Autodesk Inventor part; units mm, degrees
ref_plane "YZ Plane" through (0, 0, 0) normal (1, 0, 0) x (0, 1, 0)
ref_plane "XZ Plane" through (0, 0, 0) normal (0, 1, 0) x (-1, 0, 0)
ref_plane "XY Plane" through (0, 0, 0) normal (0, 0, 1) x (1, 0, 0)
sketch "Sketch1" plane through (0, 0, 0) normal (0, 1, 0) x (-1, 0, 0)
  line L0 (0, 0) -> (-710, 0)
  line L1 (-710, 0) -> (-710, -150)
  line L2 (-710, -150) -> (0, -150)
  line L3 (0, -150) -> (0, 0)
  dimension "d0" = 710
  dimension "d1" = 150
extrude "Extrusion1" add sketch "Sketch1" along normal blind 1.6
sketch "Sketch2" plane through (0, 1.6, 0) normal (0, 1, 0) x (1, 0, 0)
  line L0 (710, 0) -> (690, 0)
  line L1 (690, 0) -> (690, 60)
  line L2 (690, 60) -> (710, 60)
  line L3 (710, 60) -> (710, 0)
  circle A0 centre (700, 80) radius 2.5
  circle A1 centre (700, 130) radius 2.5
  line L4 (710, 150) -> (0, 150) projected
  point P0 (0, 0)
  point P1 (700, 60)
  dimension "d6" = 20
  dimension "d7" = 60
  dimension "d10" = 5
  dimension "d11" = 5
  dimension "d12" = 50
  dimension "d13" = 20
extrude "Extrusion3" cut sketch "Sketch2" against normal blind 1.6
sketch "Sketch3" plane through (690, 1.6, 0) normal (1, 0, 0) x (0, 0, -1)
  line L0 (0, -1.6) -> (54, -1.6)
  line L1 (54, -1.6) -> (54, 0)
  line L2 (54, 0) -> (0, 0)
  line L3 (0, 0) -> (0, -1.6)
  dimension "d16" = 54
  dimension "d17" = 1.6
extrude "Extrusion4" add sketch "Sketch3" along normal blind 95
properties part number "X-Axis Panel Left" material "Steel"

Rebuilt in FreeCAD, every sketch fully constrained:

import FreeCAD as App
import Part
import Sketcher

V = App.Vector


def add_polygon(sketch, points):
    """Adds a closed chain of lines whose ends are joined by coincident constraints."""
    first, n = sketch.GeometryCount, len(points)
    for a, b in zip(points, points[1:] + points[:1]):
        sketch.addGeometry(Part.LineSegment(App.Vector(*a, 0), App.Vector(*b, 0)), False)
    for i in range(n):
        sketch.addConstraint(Sketcher.Constraint("Coincident", first + i, 2, first + (i + 1) % n, 1))

doc = App.newDocument("Part")
body = doc.addObject("PartDesign::Body", "Body")

# Sketch on XZ plane
sketch1 = body.newObject("Sketcher::SketchObject", "Sketch")
sketch1.AttachmentSupport = (doc.getObject("XZ_Plane"), [""])
sketch1.MapMode = "FlatFace"
add_polygon(sketch1, [(0, -150), (0, 0), (710, 0), (710, -150)])  # lines 0-3
sketch1.addConstraint(Sketcher.Constraint("Vertical", 0))
sketch1.addConstraint(Sketcher.Constraint("Horizontal", 1))
sketch1.addConstraint(Sketcher.Constraint("Vertical", 2))
sketch1.addConstraint(Sketcher.Constraint("Horizontal", 3))
sketch1.addConstraint(Sketcher.Constraint("Coincident", 0, 2, -1, 1))
sketch1.addConstraint(Sketcher.Constraint("DistanceX", 1, 1, 1, 2, 710.0))
sketch1.addConstraint(Sketcher.Constraint("DistanceY", 0, 1, 0, 2, 150.0))
pad1 = body.newObject("PartDesign::Pad", "Pad")
pad1.Profile = sketch1
pad1.Length = 1.6
pad1.Reversed = True

# Sketch on XZ plane
sketch2 = body.newObject("Sketcher::SketchObject", "Sketch001")
sketch2.AttachmentSupport = (doc.getObject("XZ_Plane"), [""])
sketch2.MapMode = "FlatFace"
sketch2.AttachmentOffset = App.Placement(V(0, 0, -1.6), App.Rotation())
add_polygon(sketch2, [(690, 0), (710, 0), (710, -60), (690, -60)])  # lines 0-3
sketch2.addGeometry(Part.Circle(V(700, -80, 0), V(0, 0, 1), 2.5), False)  # 4
sketch2.addGeometry(Part.Circle(V(700, -130, 0), V(0, 0, 1), 2.5), False)  # 5
sketch2.addConstraint(Sketcher.Constraint("Horizontal", 0))
sketch2.addConstraint(Sketcher.Constraint("Vertical", 1))
sketch2.addConstraint(Sketcher.Constraint("Horizontal", 2))
sketch2.addConstraint(Sketcher.Constraint("Vertical", 3))
sketch2.addConstraint(Sketcher.Constraint("Equal", 4, 5))
sketch2.addConstraint(Sketcher.Constraint("PointOnObject", 0, 2, -1))
sketch2.addConstraint(Sketcher.Constraint("Vertical", 4, 3, 5, 3))
sketch2.addConstraint(Sketcher.Constraint("Diameter", 4, 5.0))
sketch2.addConstraint(Sketcher.Constraint("DistanceX", 0, 1, 0, 2, 20.0))
sketch2.addConstraint(Sketcher.Constraint("DistanceY", 1, 2, 1, 1, 60.0))
sketch2.addConstraint(Sketcher.Constraint("DistanceY", 5, 3, 4, 3, 50.0))
sketch2.addConstraint(Sketcher.Constraint("DistanceY", 4, 3, 1, 2, 20.0))
sketch2.addConstraint(Sketcher.Constraint("DistanceX", -1, 1, 4, 3, 700.0))
sketch2.addConstraint(Sketcher.Constraint("DistanceX", -1, 1, 0, 2, 710.0))
pocket1 = body.newObject("PartDesign::Pocket", "Pocket")
pocket1.Profile = sketch2
pocket1.Length = 1.6
pocket1.Reversed = True

# Sketch on YZ plane
sketch3 = body.newObject("Sketcher::SketchObject", "Sketch002")
sketch3.AttachmentSupport = (doc.getObject("YZ_Plane"), [""])
sketch3.MapMode = "FlatFace"
sketch3.AttachmentOffset = App.Placement(V(0, 0, 690), App.Rotation())
add_polygon(sketch3, [(1.6, 0), (0, 0), (0, -54), (1.6, -54)])  # lines 0-3
sketch3.addConstraint(Sketcher.Constraint("Horizontal", 0))
sketch3.addConstraint(Sketcher.Constraint("Vertical", 1))
sketch3.addConstraint(Sketcher.Constraint("Horizontal", 2))
sketch3.addConstraint(Sketcher.Constraint("Vertical", 3))
sketch3.addConstraint(Sketcher.Constraint("Coincident", 0, 2, -1, 1))
sketch3.addConstraint(Sketcher.Constraint("DistanceY", 1, 2, 1, 1, 54.0))
sketch3.addConstraint(Sketcher.Constraint("DistanceX", 0, 2, 0, 1, 1.6))
pad2 = body.newObject("PartDesign::Pad", "Pad001")
pad2.Profile = sketch3
pad2.Length = 95

doc.recompute()
